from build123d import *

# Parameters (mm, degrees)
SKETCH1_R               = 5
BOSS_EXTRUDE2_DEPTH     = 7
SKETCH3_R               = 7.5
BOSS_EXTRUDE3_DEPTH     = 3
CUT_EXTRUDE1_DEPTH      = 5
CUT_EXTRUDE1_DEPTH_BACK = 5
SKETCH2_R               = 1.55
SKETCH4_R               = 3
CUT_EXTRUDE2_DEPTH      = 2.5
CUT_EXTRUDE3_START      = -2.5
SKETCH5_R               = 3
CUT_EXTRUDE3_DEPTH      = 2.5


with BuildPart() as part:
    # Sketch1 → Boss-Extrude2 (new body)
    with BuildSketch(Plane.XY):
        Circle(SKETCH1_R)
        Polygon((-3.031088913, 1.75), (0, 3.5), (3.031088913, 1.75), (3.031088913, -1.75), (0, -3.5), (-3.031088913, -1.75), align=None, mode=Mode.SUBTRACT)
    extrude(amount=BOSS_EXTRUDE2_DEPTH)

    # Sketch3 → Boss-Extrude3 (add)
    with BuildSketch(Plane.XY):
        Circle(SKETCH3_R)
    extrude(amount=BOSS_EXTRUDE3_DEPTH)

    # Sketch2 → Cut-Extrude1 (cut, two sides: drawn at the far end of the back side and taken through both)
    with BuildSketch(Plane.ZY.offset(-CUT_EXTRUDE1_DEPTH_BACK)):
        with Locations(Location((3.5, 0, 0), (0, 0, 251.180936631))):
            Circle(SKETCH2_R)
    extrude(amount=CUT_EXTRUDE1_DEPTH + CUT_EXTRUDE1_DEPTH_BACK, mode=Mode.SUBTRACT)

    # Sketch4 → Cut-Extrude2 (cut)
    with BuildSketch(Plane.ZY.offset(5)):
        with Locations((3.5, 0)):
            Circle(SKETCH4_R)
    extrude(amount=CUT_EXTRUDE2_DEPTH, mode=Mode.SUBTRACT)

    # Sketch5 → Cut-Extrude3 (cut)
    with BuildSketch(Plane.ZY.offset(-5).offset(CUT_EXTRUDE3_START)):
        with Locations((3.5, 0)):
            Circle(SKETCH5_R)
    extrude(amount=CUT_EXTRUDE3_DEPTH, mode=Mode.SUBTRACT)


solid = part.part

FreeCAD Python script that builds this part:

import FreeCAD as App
import Part
import Sketcher
Q = App.Units.Quantity


def add_polygon(sketch, points):
    """Adds a closed chain of lines whose ends are joined by coincident constraints."""
    first, n = sketch.GeometryCount, len(points)
    for a, b in zip(points, points[1:] + points[:1]):
        sketch.addGeometry(Part.LineSegment(App.Vector(*a, 0), App.Vector(*b, 0)), False)
    for i in range(n):
        sketch.addConstraint(Sketcher.Constraint("Coincident", first + i, 2, first + (i + 1) % n, 1))

doc = App.newDocument("Part")
body = doc.addObject("PartDesign::Body", "Body")

sketch1 = body.newObject("Sketcher::SketchObject", "Sketch")
sketch1.AttachmentSupport = (doc.getObject("XY_Plane"), [""])
sketch1.MapMode = "FlatFace"
sketch1.addGeometry(Part.Circle(App.Vector(0, 0, 0), App.Vector(0, 0, 1), 5), False)
add_polygon(sketch1, [(-3, -1.8), (-3, 1.8), (0, 3.5), (3, 1.8), (3, -1.8), (0, -3.5)])
sketch1.addConstraint([
    Sketcher.Constraint("Vertical", 1),
    Sketcher.Constraint("Vertical", 4),
    Sketcher.Constraint("Coincident", 0, 3, -1, 1),
    Sketcher.Constraint("Symmetric", 1, 2, 4, 2, -1, 1),
    Sketcher.Constraint("Symmetric", 2, 2, 5, 2, -1, 1),
    Sketcher.Constraint("PointOnObject", 2, 2, -2),
    Sketcher.Constraint("Parallel", 3, 6),
    Sketcher.Constraint("Horizontal", 1, 2, 3, 2),
    Sketcher.Constraint("Diameter", 0, 10.0),
    Sketcher.Constraint("Angle", 2, Q("30 deg")),
    Sketcher.Constraint("DistanceY", 1, 1, 1, 2, 3.5),
    Sketcher.Constraint("DistanceY", 5, 2, 2, 2, 7.0),
])
pad1 = body.newObject("PartDesign::Pad", "Pad")
pad1.Profile = sketch1
pad1.Length = 7

sketch2 = body.newObject("Sketcher::SketchObject", "Sketch001")
sketch2.AttachmentSupport = (doc.getObject("XY_Plane"), [""])
sketch2.MapMode = "FlatFace"
sketch2.addGeometry(Part.Circle(App.Vector(0, 0, 0), App.Vector(0, 0, 1), 8), False)
sketch2.addConstraint([
    Sketcher.Constraint("Coincident", 0, 3, -1, 1),
    Sketcher.Constraint("Diameter", 0, 15.0),
])
pad2 = body.newObject("PartDesign::Pad", "Pad001")
pad2.Profile = sketch2
pad2.Length = 3

sketch3 = body.newObject("Sketcher::SketchObject", "Sketch002")
sketch3.AttachmentSupport = (doc.getObject("YZ_Plane"), [""])
sketch3.MapMode = "FlatFace"
sketch3.addGeometry(Part.Circle(App.Vector(0, 3.5, 0), App.Vector(0, 0, 1), 1.6), False)
sketch3.addConstraint([
    Sketcher.Constraint("PointOnObject", 0, 3, -2),
    Sketcher.Constraint("Diameter", 0, 3.1),
    Sketcher.Constraint("DistanceY", -1, 1, 0, 3, 3.5),
])
pocket1 = body.newObject("PartDesign::Pocket", "Pocket")
pocket1.Profile = sketch3
pocket1.Type = "TwoLengths"
pocket1.Length = 5
pocket1.Length2 = 5

sketch4 = body.newObject("Sketcher::SketchObject", "Sketch003")
sketch4.AttachmentSupport = (doc.getObject("YZ_Plane"), [""])
sketch4.MapMode = "FlatFace"
sketch4.AttachmentOffset = App.Placement(App.Vector(0, 0, -5), App.Rotation())
sketch4.addGeometry(Part.Circle(App.Vector(0, 3.5, 0), App.Vector(0, 0, 1), 3), False)
sketch4.addConstraint([
    Sketcher.Constraint("PointOnObject", 0, 3, -2),
    Sketcher.Constraint("Diameter", 0, 6.0),
    Sketcher.Constraint("DistanceY", -1, 1, 0, 3, 3.5),
])
pocket2 = body.newObject("PartDesign::Pocket", "Pocket001")
pocket2.Profile = sketch4
pocket2.Length = 2.5

sketch5 = body.newObject("Sketcher::SketchObject", "Sketch004")
sketch5.AttachmentSupport = (doc.getObject("YZ_Plane"), [""])
sketch5.MapMode = "FlatFace"
sketch5.AttachmentOffset = App.Placement(App.Vector(0, 0, 7.5), App.Rotation())
sketch5.addGeometry(Part.Circle(App.Vector(0, 3.5, 0), App.Vector(0, 0, 1), 3), False)
sketch5.addConstraint([
    Sketcher.Constraint("PointOnObject", 0, 3, -2),
    Sketcher.Constraint("Diameter", 0, 6.0),
    Sketcher.Constraint("DistanceY", -1, 1, 0, 3, 3.5),
])
pocket3 = body.newObject("PartDesign::Pocket", "Pocket002")
pocket3.Profile = sketch5
pocket3.Length = 2.5

doc.recompute()
